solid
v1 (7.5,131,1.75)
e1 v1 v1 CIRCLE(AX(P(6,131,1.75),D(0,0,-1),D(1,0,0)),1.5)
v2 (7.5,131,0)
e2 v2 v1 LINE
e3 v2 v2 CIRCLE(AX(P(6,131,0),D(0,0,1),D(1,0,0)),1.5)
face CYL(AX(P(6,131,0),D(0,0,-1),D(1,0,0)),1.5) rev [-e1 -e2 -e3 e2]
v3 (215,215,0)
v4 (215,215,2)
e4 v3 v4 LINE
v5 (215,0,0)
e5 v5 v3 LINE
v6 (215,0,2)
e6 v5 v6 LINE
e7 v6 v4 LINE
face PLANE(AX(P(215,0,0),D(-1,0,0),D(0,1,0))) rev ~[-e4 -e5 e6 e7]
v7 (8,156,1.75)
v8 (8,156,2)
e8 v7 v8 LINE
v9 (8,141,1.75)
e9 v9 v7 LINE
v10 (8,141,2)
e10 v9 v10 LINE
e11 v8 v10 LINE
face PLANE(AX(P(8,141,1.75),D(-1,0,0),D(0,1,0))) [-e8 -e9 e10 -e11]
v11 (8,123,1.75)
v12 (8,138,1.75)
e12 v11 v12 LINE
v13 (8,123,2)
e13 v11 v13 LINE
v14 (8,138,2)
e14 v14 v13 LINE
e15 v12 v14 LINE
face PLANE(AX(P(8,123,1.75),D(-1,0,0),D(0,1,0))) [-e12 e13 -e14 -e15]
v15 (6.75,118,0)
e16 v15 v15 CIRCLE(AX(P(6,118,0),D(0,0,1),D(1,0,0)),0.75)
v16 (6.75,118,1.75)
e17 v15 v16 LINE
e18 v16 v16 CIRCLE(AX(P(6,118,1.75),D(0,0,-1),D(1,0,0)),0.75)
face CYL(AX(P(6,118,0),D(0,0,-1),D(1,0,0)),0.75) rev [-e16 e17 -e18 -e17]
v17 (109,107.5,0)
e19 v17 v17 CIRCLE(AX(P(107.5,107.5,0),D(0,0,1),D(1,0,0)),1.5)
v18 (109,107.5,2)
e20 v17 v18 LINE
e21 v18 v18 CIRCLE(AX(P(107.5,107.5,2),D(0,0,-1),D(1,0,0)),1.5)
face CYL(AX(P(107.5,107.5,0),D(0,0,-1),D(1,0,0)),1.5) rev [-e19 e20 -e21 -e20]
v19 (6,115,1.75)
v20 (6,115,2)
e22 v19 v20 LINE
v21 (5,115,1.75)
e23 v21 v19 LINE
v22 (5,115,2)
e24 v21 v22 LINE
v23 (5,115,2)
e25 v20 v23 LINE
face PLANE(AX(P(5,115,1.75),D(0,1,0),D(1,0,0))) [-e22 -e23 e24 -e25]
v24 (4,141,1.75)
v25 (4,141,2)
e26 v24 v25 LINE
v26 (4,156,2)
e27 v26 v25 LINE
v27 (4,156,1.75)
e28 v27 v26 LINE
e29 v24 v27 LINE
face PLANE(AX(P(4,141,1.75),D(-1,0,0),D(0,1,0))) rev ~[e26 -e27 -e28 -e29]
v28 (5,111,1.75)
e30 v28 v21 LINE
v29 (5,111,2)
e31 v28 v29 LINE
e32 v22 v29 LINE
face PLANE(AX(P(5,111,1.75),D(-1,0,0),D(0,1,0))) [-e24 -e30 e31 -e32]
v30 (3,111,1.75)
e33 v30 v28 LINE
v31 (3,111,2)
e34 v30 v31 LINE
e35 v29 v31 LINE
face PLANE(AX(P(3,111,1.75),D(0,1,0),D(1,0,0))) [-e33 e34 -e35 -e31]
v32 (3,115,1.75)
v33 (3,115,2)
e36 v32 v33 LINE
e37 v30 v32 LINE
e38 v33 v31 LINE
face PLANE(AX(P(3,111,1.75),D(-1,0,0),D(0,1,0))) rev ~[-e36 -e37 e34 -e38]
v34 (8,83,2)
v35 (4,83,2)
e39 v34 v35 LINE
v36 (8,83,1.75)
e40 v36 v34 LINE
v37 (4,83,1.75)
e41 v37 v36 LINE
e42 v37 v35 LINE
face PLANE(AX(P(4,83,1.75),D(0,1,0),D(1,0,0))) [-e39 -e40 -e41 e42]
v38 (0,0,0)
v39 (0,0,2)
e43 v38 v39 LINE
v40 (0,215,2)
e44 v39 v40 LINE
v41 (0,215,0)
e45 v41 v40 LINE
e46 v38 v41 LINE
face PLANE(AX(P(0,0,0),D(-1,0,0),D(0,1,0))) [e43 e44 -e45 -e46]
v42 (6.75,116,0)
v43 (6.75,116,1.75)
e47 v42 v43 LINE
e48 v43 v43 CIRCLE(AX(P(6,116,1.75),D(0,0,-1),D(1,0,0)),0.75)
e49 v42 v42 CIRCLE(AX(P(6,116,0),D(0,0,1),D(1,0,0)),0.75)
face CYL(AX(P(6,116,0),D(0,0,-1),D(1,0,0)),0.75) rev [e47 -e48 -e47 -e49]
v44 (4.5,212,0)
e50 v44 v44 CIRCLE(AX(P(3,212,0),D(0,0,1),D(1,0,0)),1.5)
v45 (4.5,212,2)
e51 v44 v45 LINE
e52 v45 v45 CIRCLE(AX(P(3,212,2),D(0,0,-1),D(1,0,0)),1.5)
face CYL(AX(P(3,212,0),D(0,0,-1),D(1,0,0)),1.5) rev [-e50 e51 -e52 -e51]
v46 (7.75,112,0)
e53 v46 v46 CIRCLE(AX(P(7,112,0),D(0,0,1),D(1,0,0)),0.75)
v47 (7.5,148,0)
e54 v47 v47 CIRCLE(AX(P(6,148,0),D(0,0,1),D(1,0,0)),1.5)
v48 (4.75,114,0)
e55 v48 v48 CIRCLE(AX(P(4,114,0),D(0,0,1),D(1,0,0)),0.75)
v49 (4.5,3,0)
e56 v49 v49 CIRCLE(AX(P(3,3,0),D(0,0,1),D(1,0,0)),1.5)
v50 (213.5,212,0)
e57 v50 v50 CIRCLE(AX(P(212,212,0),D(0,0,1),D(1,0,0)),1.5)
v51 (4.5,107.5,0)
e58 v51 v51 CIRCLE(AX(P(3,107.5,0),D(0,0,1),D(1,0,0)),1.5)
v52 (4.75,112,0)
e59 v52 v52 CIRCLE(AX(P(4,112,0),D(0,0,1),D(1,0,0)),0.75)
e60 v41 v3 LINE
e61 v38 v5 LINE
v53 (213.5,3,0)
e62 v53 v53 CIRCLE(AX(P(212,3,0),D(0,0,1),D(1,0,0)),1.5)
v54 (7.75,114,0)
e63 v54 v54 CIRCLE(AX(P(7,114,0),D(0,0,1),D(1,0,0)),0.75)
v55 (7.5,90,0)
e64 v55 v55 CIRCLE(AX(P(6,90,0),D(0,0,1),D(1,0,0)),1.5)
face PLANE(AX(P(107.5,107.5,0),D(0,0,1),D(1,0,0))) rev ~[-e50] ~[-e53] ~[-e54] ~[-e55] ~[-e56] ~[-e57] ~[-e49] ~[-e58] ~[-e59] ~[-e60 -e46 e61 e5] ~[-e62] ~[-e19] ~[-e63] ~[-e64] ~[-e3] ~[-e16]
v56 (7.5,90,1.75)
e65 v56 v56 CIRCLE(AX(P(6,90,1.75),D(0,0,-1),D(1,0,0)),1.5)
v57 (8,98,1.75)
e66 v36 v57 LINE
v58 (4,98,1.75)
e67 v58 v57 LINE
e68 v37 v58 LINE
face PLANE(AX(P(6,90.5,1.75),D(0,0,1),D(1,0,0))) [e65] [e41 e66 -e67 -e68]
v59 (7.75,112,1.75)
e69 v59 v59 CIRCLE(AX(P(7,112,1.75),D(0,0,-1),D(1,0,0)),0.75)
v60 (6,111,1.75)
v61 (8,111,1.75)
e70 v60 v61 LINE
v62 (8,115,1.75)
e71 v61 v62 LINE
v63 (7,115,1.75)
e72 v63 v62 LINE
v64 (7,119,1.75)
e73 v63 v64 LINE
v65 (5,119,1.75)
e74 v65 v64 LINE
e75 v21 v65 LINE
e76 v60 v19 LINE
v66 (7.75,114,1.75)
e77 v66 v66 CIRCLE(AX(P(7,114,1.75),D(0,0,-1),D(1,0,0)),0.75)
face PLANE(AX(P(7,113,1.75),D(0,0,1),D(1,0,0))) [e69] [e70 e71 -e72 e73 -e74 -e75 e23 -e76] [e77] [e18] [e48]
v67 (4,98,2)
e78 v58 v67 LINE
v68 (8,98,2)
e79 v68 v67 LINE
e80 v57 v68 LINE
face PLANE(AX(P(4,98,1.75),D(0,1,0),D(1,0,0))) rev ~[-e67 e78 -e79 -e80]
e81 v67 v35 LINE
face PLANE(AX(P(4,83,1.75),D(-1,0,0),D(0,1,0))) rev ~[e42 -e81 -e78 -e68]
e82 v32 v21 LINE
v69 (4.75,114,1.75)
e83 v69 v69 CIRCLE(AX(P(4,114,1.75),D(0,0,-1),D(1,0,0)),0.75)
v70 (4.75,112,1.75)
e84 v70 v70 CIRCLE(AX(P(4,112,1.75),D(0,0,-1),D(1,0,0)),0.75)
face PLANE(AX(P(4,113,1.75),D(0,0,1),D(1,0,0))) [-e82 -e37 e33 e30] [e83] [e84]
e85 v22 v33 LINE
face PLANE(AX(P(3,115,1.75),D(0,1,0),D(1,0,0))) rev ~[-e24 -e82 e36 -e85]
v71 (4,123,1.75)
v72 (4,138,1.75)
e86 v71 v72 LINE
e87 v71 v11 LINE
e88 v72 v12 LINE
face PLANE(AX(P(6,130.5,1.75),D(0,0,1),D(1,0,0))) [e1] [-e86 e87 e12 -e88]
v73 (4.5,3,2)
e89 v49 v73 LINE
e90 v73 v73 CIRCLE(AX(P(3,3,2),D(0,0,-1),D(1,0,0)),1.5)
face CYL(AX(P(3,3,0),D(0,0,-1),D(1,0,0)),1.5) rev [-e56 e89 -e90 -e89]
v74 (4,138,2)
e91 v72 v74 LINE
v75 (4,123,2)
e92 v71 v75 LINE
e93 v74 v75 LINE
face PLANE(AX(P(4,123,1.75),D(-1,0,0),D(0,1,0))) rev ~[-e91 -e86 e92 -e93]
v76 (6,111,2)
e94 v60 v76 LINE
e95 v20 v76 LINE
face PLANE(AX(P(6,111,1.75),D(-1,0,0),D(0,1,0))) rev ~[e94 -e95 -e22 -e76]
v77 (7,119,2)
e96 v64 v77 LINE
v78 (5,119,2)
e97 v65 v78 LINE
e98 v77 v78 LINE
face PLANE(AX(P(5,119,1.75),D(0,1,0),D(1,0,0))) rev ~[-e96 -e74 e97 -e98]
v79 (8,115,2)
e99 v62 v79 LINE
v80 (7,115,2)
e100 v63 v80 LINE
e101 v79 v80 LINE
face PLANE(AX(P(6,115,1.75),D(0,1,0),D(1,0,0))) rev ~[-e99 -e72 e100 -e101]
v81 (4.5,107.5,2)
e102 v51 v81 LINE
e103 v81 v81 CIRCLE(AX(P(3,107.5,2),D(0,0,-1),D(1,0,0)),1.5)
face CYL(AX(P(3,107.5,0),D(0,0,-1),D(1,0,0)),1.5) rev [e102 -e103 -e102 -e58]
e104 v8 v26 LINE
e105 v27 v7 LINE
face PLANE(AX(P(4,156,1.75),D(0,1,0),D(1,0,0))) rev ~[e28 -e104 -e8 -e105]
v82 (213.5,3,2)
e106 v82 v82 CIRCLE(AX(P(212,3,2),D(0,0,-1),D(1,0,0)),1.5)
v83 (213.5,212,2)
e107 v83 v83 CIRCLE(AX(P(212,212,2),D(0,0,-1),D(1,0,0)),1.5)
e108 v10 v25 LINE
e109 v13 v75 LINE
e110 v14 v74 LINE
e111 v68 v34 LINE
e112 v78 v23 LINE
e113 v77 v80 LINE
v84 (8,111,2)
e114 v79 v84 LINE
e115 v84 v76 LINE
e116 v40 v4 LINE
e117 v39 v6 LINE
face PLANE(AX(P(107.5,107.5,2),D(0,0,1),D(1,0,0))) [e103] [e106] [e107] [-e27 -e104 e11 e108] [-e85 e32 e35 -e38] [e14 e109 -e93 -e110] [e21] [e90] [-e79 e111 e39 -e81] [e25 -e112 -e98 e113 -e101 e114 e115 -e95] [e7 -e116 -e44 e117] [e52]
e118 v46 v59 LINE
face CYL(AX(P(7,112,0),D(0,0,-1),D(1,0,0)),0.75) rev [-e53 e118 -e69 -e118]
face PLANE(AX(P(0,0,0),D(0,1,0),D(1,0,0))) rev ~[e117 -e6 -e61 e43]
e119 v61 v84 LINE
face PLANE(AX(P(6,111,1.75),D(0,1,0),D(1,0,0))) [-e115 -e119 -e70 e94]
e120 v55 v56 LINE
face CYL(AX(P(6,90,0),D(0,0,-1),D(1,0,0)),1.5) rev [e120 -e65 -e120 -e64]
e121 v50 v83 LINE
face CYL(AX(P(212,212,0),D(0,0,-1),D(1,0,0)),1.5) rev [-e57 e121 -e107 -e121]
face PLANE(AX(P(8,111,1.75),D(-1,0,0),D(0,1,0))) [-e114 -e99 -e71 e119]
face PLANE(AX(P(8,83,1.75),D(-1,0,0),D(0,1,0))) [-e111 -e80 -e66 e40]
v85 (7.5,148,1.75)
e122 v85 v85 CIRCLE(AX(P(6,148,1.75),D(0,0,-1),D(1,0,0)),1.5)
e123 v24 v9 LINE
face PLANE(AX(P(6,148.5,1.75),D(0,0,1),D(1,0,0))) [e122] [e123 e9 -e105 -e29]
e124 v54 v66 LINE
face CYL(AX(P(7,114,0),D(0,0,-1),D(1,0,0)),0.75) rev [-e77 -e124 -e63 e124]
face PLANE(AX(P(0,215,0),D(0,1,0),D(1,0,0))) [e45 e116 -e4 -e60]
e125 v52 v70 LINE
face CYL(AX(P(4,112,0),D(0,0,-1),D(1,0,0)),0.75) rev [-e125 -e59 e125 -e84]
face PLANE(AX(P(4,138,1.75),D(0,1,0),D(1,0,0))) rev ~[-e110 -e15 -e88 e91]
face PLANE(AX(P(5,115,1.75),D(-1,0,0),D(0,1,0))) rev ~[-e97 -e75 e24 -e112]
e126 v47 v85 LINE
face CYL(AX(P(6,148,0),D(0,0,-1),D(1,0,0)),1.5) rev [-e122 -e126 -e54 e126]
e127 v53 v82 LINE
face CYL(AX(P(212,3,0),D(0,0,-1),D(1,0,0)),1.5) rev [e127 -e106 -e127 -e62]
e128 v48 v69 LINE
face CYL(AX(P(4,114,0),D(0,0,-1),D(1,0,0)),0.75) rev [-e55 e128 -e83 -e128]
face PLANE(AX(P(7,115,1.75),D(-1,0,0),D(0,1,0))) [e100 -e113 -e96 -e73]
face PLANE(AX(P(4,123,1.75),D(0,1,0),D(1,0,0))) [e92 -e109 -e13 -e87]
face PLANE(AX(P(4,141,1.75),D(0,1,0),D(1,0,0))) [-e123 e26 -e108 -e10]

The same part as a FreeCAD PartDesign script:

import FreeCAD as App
import Part
import Sketcher

doc = App.newDocument("Part")
body = doc.addObject("PartDesign::Body", "Body")

# Sketch on XY plane
sketch1 = doc.addObject("Sketcher::SketchObject", "Sketch")
body.addObject(sketch1)
sketch1.AttachmentSupport = (doc.XY_Plane, [""])
sketch1.MapMode = "FlatFace"
sketch1.AttachmentOffset = App.Placement(App.Vector(0, 0, 1.75), App.Rotation())
sketch1.addGeometry([
    Part.LineSegment(App.Vector(6, 115, 0), App.Vector(6, 111, 0)),
    Part.LineSegment(App.Vector(6, 111, 0), App.Vector(8, 111, 0)),
    Part.LineSegment(App.Vector(8, 111, 0), App.Vector(8, 115, 0)),
    Part.LineSegment(App.Vector(8, 115, 0), App.Vector(6, 115, 0)),
], False)
sketch1.addConstraint([
    Sketcher.Constraint("Coincident", 0, 2, 1, 1),
    Sketcher.Constraint("Coincident", 1, 2, 2, 1),
    Sketcher.Constraint("Coincident", 2, 2, 3, 1),
    Sketcher.Constraint("Coincident", 3, 2, 0, 1),
    Sketcher.Constraint("Vertical", 0),
    Sketcher.Constraint("Horizontal", 1),
    Sketcher.Constraint("Vertical", 2),
    Sketcher.Constraint("Horizontal", 3),
    Sketcher.Constraint("DistanceX", 1, 1, 1, 2, 2.0),
    Sketcher.Constraint("DistanceY", 0, 2, 0, 1, 4.0),
    Sketcher.Constraint("DistanceX", -1, 1, 0, 2, 6.0),
    Sketcher.Constraint("DistanceY", -1, 1, 0, 2, 111.0),
])
pad1 = doc.addObject("PartDesign::Pad", "Pad")
body.addObject(pad1)
pad1.Profile = sketch1
pad1.Length = 0.5
body2 = doc.addObject("PartDesign::Body", "Body001")

# Sketch on XY plane
sketch2 = doc.addObject("Sketcher::SketchObject", "Sketch001")
body2.addObject(sketch2)
sketch2.AttachmentSupport = (doc.getObject("XY_Plane001"), [""])
sketch2.MapMode = "FlatFace"
sketch2.AttachmentOffset = App.Placement(App.Vector(0, 0, 1.75), App.Rotation())
sketch2.addGeometry([
    Part.LineSegment(App.Vector(5, 119, 0), App.Vector(5, 115, 0)),
    Part.LineSegment(App.Vector(5, 115, 0), App.Vector(7, 115, 0)),
    Part.LineSegment(App.Vector(7, 115, 0), App.Vector(7, 119, 0)),
    Part.LineSegment(App.Vector(7, 119, 0), App.Vector(5, 119, 0)),
], False)
sketch2.addConstraint([
    Sketcher.Constraint("Coincident", 0, 2, 1, 1),
    Sketcher.Constraint("Coincident", 1, 2, 2, 1),
    Sketcher.Constraint("Coincident", 2, 2, 3, 1),
    Sketcher.Constraint("Coincident", 3, 2, 0, 1),
    Sketcher.Constraint("Vertical", 0),
    Sketcher.Constraint("Horizontal", 1),
    Sketcher.Constraint("Vertical", 2),
    Sketcher.Constraint("Horizontal", 3),
    Sketcher.Constraint("DistanceX", 1, 1, 1, 2, 2.0),
    Sketcher.Constraint("DistanceY", 0, 2, 0, 1, 4.0),
    Sketcher.Constraint("DistanceX", -1, 1, 0, 2, 5.0),
    Sketcher.Constraint("DistanceY", -1, 1, 0, 2, 115.0),
])
pad2 = doc.addObject("PartDesign::Pad", "Pad001")
body2.addObject(pad2)
pad2.Profile = sketch2
pad2.Length = 0.5
body3 = doc.addObject("PartDesign::Body", "Body002")

# Sketch on XY plane
sketch3 = doc.addObject("Sketcher::SketchObject", "Sketch002")
body3.addObject(sketch3)
sketch3.AttachmentSupport = (doc.getObject("XY_Plane002"), [""])
sketch3.MapMode = "FlatFace"
sketch3.AttachmentOffset = App.Placement(App.Vector(0, 0, 1.75), App.Rotation())
sketch3.addGeometry([
    Part.LineSegment(App.Vector(3, 115, 0), App.Vector(3, 111, 0)),
    Part.LineSegment(App.Vector(3, 111, 0), App.Vector(5, 111, 0)),
    Part.LineSegment(App.Vector(5, 111, 0), App.Vector(5, 115, 0)),
    Part.LineSegment(App.Vector(5, 115, 0), App.Vector(3, 115, 0)),
], False)
sketch3.addConstraint([
    Sketcher.Constraint("Coincident", 0, 2, 1, 1),
    Sketcher.Constraint("Coincident", 1, 2, 2, 1),
    Sketcher.Constraint("Coincident", 2, 2, 3, 1),
    Sketcher.Constraint("Coincident", 3, 2, 0, 1),
    Sketcher.Constraint("Vertical", 0),
    Sketcher.Constraint("Horizontal", 1),
    Sketcher.Constraint("Vertical", 2),
    Sketcher.Constraint("Horizontal", 3),
    Sketcher.Constraint("DistanceX", 1, 1, 1, 2, 2.0),
    Sketcher.Constraint("DistanceY", 0, 2, 0, 1, 4.0),
    Sketcher.Constraint("DistanceX", -1, 1, 0, 2, 3.0),
    Sketcher.Constraint("DistanceY", -1, 1, 0, 2, 111.0),
])
pad3 = doc.addObject("PartDesign::Pad", "Pad002")
body3.addObject(pad3)
pad3.Profile = sketch3
pad3.Length = 0.5
body4 = doc.addObject("PartDesign::Body", "Body003")

# Sketch on XY plane
sketch4 = doc.addObject("Sketcher::SketchObject", "Sketch003")
body4.addObject(sketch4)
sketch4.AttachmentSupport = (doc.getObject("XY_Plane003"), [""])
sketch4.MapMode = "FlatFace"
sketch4.AttachmentOffset = App.Placement(App.Vector(0, 0, 1.75), App.Rotation())
sketch4.addGeometry([
    Part.LineSegment(App.Vector(4, 156, 0), App.Vector(4, 141, 0)),
    Part.LineSegment(App.Vector(4, 141, 0), App.Vector(8, 141, 0)),
    Part.LineSegment(App.Vector(8, 141, 0), App.Vector(8, 156, 0)),
    Part.LineSegment(App.Vector(8, 156, 0), App.Vector(4, 156, 0)),
], False)
sketch4.addConstraint([
    Sketcher.Constraint("Coincident", 0, 2, 1, 1),
    Sketcher.Constraint("Coincident", 1, 2, 2, 1),
    Sketcher.Constraint("Coincident", 2, 2, 3, 1),
    Sketcher.Constraint("Coincident", 3, 2, 0, 1),
    Sketcher.Constraint("Vertical", 0),
    Sketcher.Constraint("Horizontal", 1),
    Sketcher.Constraint("Vertical", 2),
    Sketcher.Constraint("Horizontal", 3),
    Sketcher.Constraint("DistanceX", 1, 1, 1, 2, 4.0),
    Sketcher.Constraint("DistanceY", 0, 2, 0, 1, 15.0),
    Sketcher.Constraint("DistanceX", -1, 1, 0, 2, 4.0),
    Sketcher.Constraint("DistanceY", -1, 1, 0, 2, 141.0),
])
pad4 = doc.addObject("PartDesign::Pad", "Pad003")
body4.addObject(pad4)
pad4.Profile = sketch4
pad4.Length = 0.5
body5 = doc.addObject("PartDesign::Body", "Body004")

# Sketch on XY plane
sketch5 = doc.addObject("Sketcher::SketchObject", "Sketch004")
body5.addObject(sketch5)
sketch5.AttachmentSupport = (doc.getObject("XY_Plane004"), [""])
sketch5.MapMode = "FlatFace"
sketch5.AttachmentOffset = App.Placement(App.Vector(0, 0, 1.75), App.Rotation())
sketch5.addGeometry([
    Part.LineSegment(App.Vector(4, 138, 0), App.Vector(4, 123, 0)),
    Part.LineSegment(App.Vector(4, 123, 0), App.Vector(8, 123, 0)),
    Part.LineSegment(App.Vector(8, 123, 0), App.Vector(8, 138, 0)),
    Part.LineSegment(App.Vector(8, 138, 0), App.Vector(4, 138, 0)),
], False)
sketch5.addConstraint([
    Sketcher.Constraint("Coincident", 0, 2, 1, 1),
    Sketcher.Constraint("Coincident", 1, 2, 2, 1),
    Sketcher.Constraint("Coincident", 2, 2, 3, 1),
    Sketcher.Constraint("Coincident", 3, 2, 0, 1),
    Sketcher.Constraint("Vertical", 0),
    Sketcher.Constraint("Horizontal", 1),
    Sketcher.Constraint("Vertical", 2),
    Sketcher.Constraint("Horizontal", 3),
    Sketcher.Constraint("DistanceX", 1, 1, 1, 2, 4.0),
    Sketcher.Constraint("DistanceY", 0, 2, 0, 1, 15.0),
    Sketcher.Constraint("DistanceX", -1, 1, 0, 2, 4.0),
    Sketcher.Constraint("DistanceY", -1, 1, 0, 2, 123.0),
])
pad5 = doc.addObject("PartDesign::Pad", "Pad004")
body5.addObject(pad5)
pad5.Profile = sketch5
pad5.Length = 0.5
body6 = doc.addObject("PartDesign::Body", "Body005")

# Sketch on XY plane
sketch6 = doc.addObject("Sketcher::SketchObject", "Sketch005")
body6.addObject(sketch6)
sketch6.AttachmentSupport = (doc.getObject("XY_Plane005"), [""])
sketch6.MapMode = "FlatFace"
sketch6.AttachmentOffset = App.Placement(App.Vector(0, 0, 1.75), App.Rotation())
sketch6.addGeometry([
    Part.LineSegment(App.Vector(4, 98, 0), App.Vector(4, 83, 0)),
    Part.LineSegment(App.Vector(4, 83, 0), App.Vector(8, 83, 0)),
    Part.LineSegment(App.Vector(8, 83, 0), App.Vector(8, 98, 0)),
    Part.LineSegment(App.Vector(8, 98, 0), App.Vector(4, 98, 0)),
], False)
sketch6.addConstraint([
    Sketcher.Constraint("Coincident", 0, 2, 1, 1),
    Sketcher.Constraint("Coincident", 1, 2, 2, 1),
    Sketcher.Constraint("Coincident", 2, 2, 3, 1),
    Sketcher.Constraint("Coincident", 3, 2, 0, 1),
    Sketcher.Constraint("Vertical", 0),
    Sketcher.Constraint("Horizontal", 1),
    Sketcher.Constraint("Vertical", 2),
    Sketcher.Constraint("Horizontal", 3),
    Sketcher.Constraint("DistanceX", 1, 1, 1, 2, 4.0),
    Sketcher.Constraint("DistanceY", 0, 2, 0, 1, 15.0),
    Sketcher.Constraint("DistanceX", -1, 1, 0, 2, 4.0),
    Sketcher.Constraint("DistanceY", -1, 1, 0, 2, 83.0),
])
pad6 = doc.addObject("PartDesign::Pad", "Pad005")
body6.addObject(pad6)
pad6.Profile = sketch6
pad6.Length = 0.5
body7 = doc.addObject("PartDesign::Body", "Body006")

# Sketch on XY plane
sketch7 = doc.addObject("Sketcher::SketchObject", "Sketch006")
body7.addObject(sketch7)
sketch7.AttachmentSupport = (doc.getObject("XY_Plane006"), [""])
sketch7.MapMode = "FlatFace"
sketch7.addGeometry(Part.Circle(App.Vector(6, 118, 0), App.Vector(0, 0, 1), 0.8), False)
sketch7.addConstraint([
    Sketcher.Constraint("Diameter", 0, 1.5),
    Sketcher.Constraint("DistanceX", -1, 1, 0, 3, 6.0),
    Sketcher.Constraint("DistanceY", -1, 1, 0, 3, 118.0),
])
pad7 = doc.addObject("PartDesign::Pad", "Pad006")
body7.addObject(pad7)
pad7.Profile = sketch7
pad7.Length = 10
body8 = doc.addObject("PartDesign::Body", "Body007")

# Sketch on XY plane
sketch8 = doc.addObject("Sketcher::SketchObject", "Sketch007")
body8.addObject(sketch8)
sketch8.AttachmentSupport = (doc.getObject("XY_Plane007"), [""])
sketch8.MapMode = "FlatFace"
sketch8.addGeometry(Part.Circle(App.Vector(6, 116, 0), App.Vector(0, 0, 1), 0.8), False)
sketch8.addConstraint([
    Sketcher.Constraint("Diameter", 0, 1.5),
    Sketcher.Constraint("DistanceX", -1, 1, 0, 3, 6.0),
    Sketcher.Constraint("DistanceY", -1, 1, 0, 3, 116.0),
])
pad8 = doc.addObject("PartDesign::Pad", "Pad007")
body8.addObject(pad8)
pad8.Profile = sketch8
pad8.Length = 10
body9 = doc.addObject("PartDesign::Body", "Body008")

# Sketch on XY plane
sketch9 = doc.addObject("Sketcher::SketchObject", "Sketch008")
body9.addObject(sketch9)
sketch9.AttachmentSupport = (doc.getObject("XY_Plane008"), [""])
sketch9.MapMode = "FlatFace"
sketch9.addGeometry(Part.Circle(App.Vector(4, 114, 0), App.Vector(0, 0, 1), 0.8), False)
sketch9.addConstraint([
    Sketcher.Constraint("Diameter", 0, 1.5),
    Sketcher.Constraint("DistanceX", -1, 1, 0, 3, 4.0),
    Sketcher.Constraint("DistanceY", -1, 1, 0, 3, 114.0),
])
pad9 = doc.addObject("PartDesign::Pad", "Pad008")
body9.addObject(pad9)
pad9.Profile = sketch9
pad9.Length = 10
body10 = doc.addObject("PartDesign::Body", "Body009")

# Sketch on XY plane
sketch10 = doc.addObject("Sketcher::SketchObject", "Sketch009")
body10.addObject(sketch10)
sketch10.AttachmentSupport = (doc.getObject("XY_Plane009"), [""])
sketch10.MapMode = "FlatFace"
sketch10.addGeometry(Part.Circle(App.Vector(7, 114, 0), App.Vector(0, 0, 1), 0.8), False)
sketch10.addConstraint([
    Sketcher.Constraint("Diameter", 0, 1.5),
    Sketcher.Constraint("DistanceX", -1, 1, 0, 3, 7.0),
    Sketcher.Constraint("DistanceY", -1, 1, 0, 3, 114.0),
])
pad10 = doc.addObject("PartDesign::Pad", "Pad009")
body10.addObject(pad10)
pad10.Profile = sketch10
pad10.Length = 10
body11 = doc.addObject("PartDesign::Body", "Body010")

# Sketch on XY plane
sketch11 = doc.addObject("Sketcher::SketchObject", "Sketch010")
body11.addObject(sketch11)
sketch11.AttachmentSupport = (doc.getObject("XY_Plane010"), [""])
sketch11.MapMode = "FlatFace"
sketch11.addGeometry(Part.Circle(App.Vector(7, 112, 0), App.Vector(0, 0, 1), 0.8), False)
sketch11.addConstraint([
    Sketcher.Constraint("Diameter", 0, 1.5),
    Sketcher.Constraint("DistanceX", -1, 1, 0, 3, 7.0),
    Sketcher.Constraint("DistanceY", -1, 1, 0, 3, 112.0),
])
pad11 = doc.addObject("PartDesign::Pad", "Pad010")
body11.addObject(pad11)
pad11.Profile = sketch11
pad11.Length = 10
body12 = doc.addObject("PartDesign::Body", "Body011")

# Sketch on XY plane
sketch12 = doc.addObject("Sketcher::SketchObject", "Sketch011")
body12.addObject(sketch12)
sketch12.AttachmentSupport = (doc.getObject("XY_Plane011"), [""])
sketch12.MapMode = "FlatFace"
sketch12.addGeometry(Part.Circle(App.Vector(4, 112, 0), App.Vector(0, 0, 1), 0.8), False)
sketch12.addConstraint([
    Sketcher.Constraint("Diameter", 0, 1.5),
    Sketcher.Constraint("DistanceX", -1, 1, 0, 3, 4.0),
    Sketcher.Constraint("DistanceY", -1, 1, 0, 3, 112.0),
])
pad12 = doc.addObject("PartDesign::Pad", "Pad011")
body12.addObject(pad12)
pad12.Profile = sketch12
pad12.Length = 10
body13 = doc.addObject("PartDesign::Body", "Body012")

# Sketch on XY plane
sketch13 = doc.addObject("Sketcher::SketchObject", "Sketch012")
body13.addObject(sketch13)
sketch13.AttachmentSupport = (doc.getObject("XY_Plane012"), [""])
sketch13.MapMode = "FlatFace"
sketch13.addGeometry(Part.Circle(App.Vector(3, 107.5, 0), App.Vector(0, 0, 1), 1.5), False)
sketch13.addConstraint([
    Sketcher.Constraint("Diameter", 0, 3.0),
    Sketcher.Constraint("DistanceX", -1, 1, 0, 3, 3.0),
    Sketcher.Constraint("DistanceY", -1, 1, 0, 3, 107.5),
])
pad13 = doc.addObject("PartDesign::Pad", "Pad012")
body13.addObject(pad13)
pad13.Profile = sketch13
pad13.Length = 10
body14 = doc.addObject("PartDesign::Body", "Body013")

# Sketch on XY plane
sketch14 = doc.addObject("Sketcher::SketchObject", "Sketch013")
body14.addObject(sketch14)
sketch14.AttachmentSupport = (doc.getObject("XY_Plane013"), [""])
sketch14.MapMode = "FlatFace"
sketch14.addGeometry(Part.Circle(App.Vector(6, 131, 0), App.Vector(0, 0, 1), 1.5), False)
sketch14.addConstraint([
    Sketcher.Constraint("Diameter", 0, 3.0),
    Sketcher.Constraint("DistanceX", -1, 1, 0, 3, 6.0),
    Sketcher.Constraint("DistanceY", -1, 1, 0, 3, 131.0),
])
pad14 = doc.addObject("PartDesign::Pad", "Pad013")
body14.addObject(pad14)
pad14.Profile = sketch14
pad14.Length = 10
body15 = doc.addObject("PartDesign::Body", "Body014")

# Sketch on XY plane
sketch15 = doc.addObject("Sketcher::SketchObject", "Sketch014")
body15.addObject(sketch15)
sketch15.AttachmentSupport = (doc.getObject("XY_Plane014"), [""])
sketch15.MapMode = "FlatFace"
sketch15.addGeometry(Part.Circle(App.Vector(6, 148, 0), App.Vector(0, 0, 1), 1.5), False)
sketch15.addConstraint([
    Sketcher.Constraint("Diameter", 0, 3.0),
    Sketcher.Constraint("DistanceX", -1, 1, 0, 3, 6.0),
    Sketcher.Constraint("DistanceY", -1, 1, 0, 3, 148.0),
])
pad15 = doc.addObject("PartDesign::Pad", "Pad014")
body15.addObject(pad15)
pad15.Profile = sketch15
pad15.Length = 10
body16 = doc.addObject("PartDesign::Body", "Body015")

# Sketch on XY plane
sketch16 = doc.addObject("Sketcher::SketchObject", "Sketch015")
body16.addObject(sketch16)
sketch16.AttachmentSupport = (doc.getObject("XY_Plane015"), [""])
sketch16.MapMode = "FlatFace"
sketch16.addGeometry(Part.Circle(App.Vector(6, 90, 0), App.Vector(0, 0, 1), 1.5), False)
sketch16.addConstraint([
    Sketcher.Constraint("Diameter", 0, 3.0),
    Sketcher.Constraint("DistanceX", -1, 1, 0, 3, 6.0),
    Sketcher.Constraint("DistanceY", -1, 1, 0, 3, 90.0),
])
pad16 = doc.addObject("PartDesign::Pad", "Pad015")
body16.addObject(pad16)
pad16.Profile = sketch16
pad16.Length = 10
body17 = doc.addObject("PartDesign::Body", "Body016")

# Sketch on XY plane
sketch17 = doc.addObject("Sketcher::SketchObject", "Sketch016")
body17.addObject(sketch17)
sketch17.AttachmentSupport = (doc.getObject("XY_Plane016"), [""])
sketch17.MapMode = "FlatFace"
sketch17.addGeometry(Part.Circle(App.Vector(3, 212, 0), App.Vector(0, 0, 1), 1.5), False)
sketch17.addConstraint([
    Sketcher.Constraint("Diameter", 0, 3.0),
    Sketcher.Constraint("DistanceX", -1, 1, 0, 3, 3.0),
    Sketcher.Constraint("DistanceY", -1, 1, 0, 3, 212.0),
])
pad17 = doc.addObject("PartDesign::Pad", "Pad016")
body17.addObject(pad17)
pad17.Profile = sketch17
pad17.Length = 10
body18 = doc.addObject("PartDesign::Body", "Body017")

# Sketch on XY plane
sketch18 = doc.addObject("Sketcher::SketchObject", "Sketch017")
body18.addObject(sketch18)
sketch18.AttachmentSupport = (doc.getObject("XY_Plane017"), [""])
sketch18.MapMode = "FlatFace"
sketch18.addGeometry(Part.Circle(App.Vector(107.5, 107.5, 0), App.Vector(0, 0, 1), 1.5), False)
sketch18.addConstraint([
    Sketcher.Constraint("Diameter", 0, 3.0),
    Sketcher.Constraint("DistanceX", -1, 1, 0, 3, 107.5),
    Sketcher.Constraint("DistanceY", -1, 1, 0, 3, 107.5),
])
pad18 = doc.addObject("PartDesign::Pad", "Pad017")
body18.addObject(pad18)
pad18.Profile = sketch18
pad18.Length = 10
body19 = doc.addObject("PartDesign::Body", "Body018")

# Sketch on XY plane
sketch19 = doc.addObject("Sketcher::SketchObject", "Sketch018")
body19.addObject(sketch19)
sketch19.AttachmentSupport = (doc.getObject("XY_Plane018"), [""])
sketch19.MapMode = "FlatFace"
sketch19.addGeometry(Part.Circle(App.Vector(212, 212, 0), App.Vector(0, 0, 1), 1.5), False)
sketch19.addConstraint([
    Sketcher.Constraint("Diameter", 0, 3.0),
    Sketcher.Constraint("DistanceX", -1, 1, 0, 3, 212.0),
    Sketcher.Constraint("DistanceY", -1, 1, 0, 3, 212.0),
])
pad19 = doc.addObject("PartDesign::Pad", "Pad018")
body19.addObject(pad19)
pad19.Profile = sketch19
pad19.Length = 10
body20 = doc.addObject("PartDesign::Body", "Body019")

# Sketch on XY plane
sketch20 = doc.addObject("Sketcher::SketchObject", "Sketch019")
body20.addObject(sketch20)
sketch20.AttachmentSupport = (doc.getObject("XY_Plane019"), [""])
sketch20.MapMode = "FlatFace"
sketch20.addGeometry(Part.Circle(App.Vector(212, 3, 0), App.Vector(0, 0, 1), 1.5), False)
sketch20.addConstraint([
    Sketcher.Constraint("Diameter", 0, 3.0),
    Sketcher.Constraint("DistanceX", -1, 1, 0, 3, 212.0),
    Sketcher.Constraint("DistanceY", -1, 1, 0, 3, 3.0),
])
pad20 = doc.addObject("PartDesign::Pad", "Pad019")
body20.addObject(pad20)
pad20.Profile = sketch20
pad20.Length = 10
body21 = doc.addObject("PartDesign::Body", "Body020")

# Sketch on XY plane
sketch21 = doc.addObject("Sketcher::SketchObject", "Sketch020")
body21.addObject(sketch21)
sketch21.AttachmentSupport = (doc.getObject("XY_Plane020"), [""])
sketch21.MapMode = "FlatFace"
sketch21.addGeometry(Part.Circle(App.Vector(3, 3, 0), App.Vector(0, 0, 1), 1.5), False)
sketch21.addConstraint([
    Sketcher.Constraint("Diameter", 0, 3.0),
    Sketcher.Constraint("DistanceX", -1, 1, 0, 3, 3.0),
    Sketcher.Constraint("DistanceY", -1, 1, 0, 3, 3.0),
])
pad21 = doc.addObject("PartDesign::Pad", "Pad020")
body21.addObject(pad21)
pad21.Profile = sketch21
pad21.Length = 10
body22 = doc.addObject("PartDesign::Body", "Body021")

# Sketch on XY plane
sketch22 = doc.addObject("Sketcher::SketchObject", "Sketch021")
body22.addObject(sketch22)
sketch22.AttachmentSupport = (doc.getObject("XY_Plane021"), [""])
sketch22.MapMode = "FlatFace"
sketch22.addGeometry([
    Part.LineSegment(App.Vector(0, 215, 0), App.Vector(0, 0, 0)),
    Part.LineSegment(App.Vector(0, 0, 0), App.Vector(215, 0, 0)),
    Part.LineSegment(App.Vector(215, 0, 0), App.Vector(215, 215, 0)),
    Part.LineSegment(App.Vector(215, 215, 0), App.Vector(0, 215, 0)),
], False)
sketch22.addConstraint([
    Sketcher.Constraint("Coincident", 0, 2, 1, 1),
    Sketcher.Constraint("Coincident", 1, 2, 2, 1),
    Sketcher.Constraint("Coincident", 2, 2, 3, 1),
    Sketcher.Constraint("Coincident", 3, 2, 0, 1),
    Sketcher.Constraint("Vertical", 0),
    Sketcher.Constraint("Horizontal", 1),
    Sketcher.Constraint("Vertical", 2),
    Sketcher.Constraint("Horizontal", 3),
    Sketcher.Constraint("Coincident", 0, 2, -1, 1),
    Sketcher.Constraint("Equal", 3, 0),
    Sketcher.Constraint("DistanceX", 1, 1, 1, 2, 215.0),
])
pad22 = doc.addObject("PartDesign::Pad", "Pad021")
body22.addObject(pad22)
pad22.Profile = sketch22
pad22.Length = 2
doc.recompute()

boolean = doc.addObject("PartDesign::Boolean", "Boolean")
body22.addObject(boolean)
boolean.Type = "Cut"
boolean.addObjects([body21])
doc.recompute()

boolean2 = doc.addObject("PartDesign::Boolean", "Boolean001")
body22.addObject(boolean2)
boolean2.Type = "Cut"
boolean2.addObjects([body20])
doc.recompute()

boolean3 = doc.addObject("PartDesign::Boolean", "Boolean002")
body22.addObject(boolean3)
boolean3.Type = "Cut"
boolean3.addObjects([body19])
doc.recompute()

boolean4 = doc.addObject("PartDesign::Boolean", "Boolean003")
body22.addObject(boolean4)
boolean4.Type = "Cut"
boolean4.addObjects([body18])
doc.recompute()

boolean5 = doc.addObject("PartDesign::Boolean", "Boolean004")
body22.addObject(boolean5)
boolean5.Type = "Cut"
boolean5.addObjects([body17])
doc.recompute()

boolean6 = doc.addObject("PartDesign::Boolean", "Boolean005")
body22.addObject(boolean6)
boolean6.Type = "Cut"
boolean6.addObjects([body16])
doc.recompute()

boolean7 = doc.addObject("PartDesign::Boolean", "Boolean006")
body22.addObject(boolean7)
boolean7.Type = "Cut"
boolean7.addObjects([body15])
doc.recompute()

boolean8 = doc.addObject("PartDesign::Boolean", "Boolean007")
body22.addObject(boolean8)
boolean8.Type = "Cut"
boolean8.addObjects([body14])
doc.recompute()

boolean9 = doc.addObject("PartDesign::Boolean", "Boolean008")
body22.addObject(boolean9)
boolean9.Type = "Cut"
boolean9.addObjects([body13])
doc.recompute()

boolean10 = doc.addObject("PartDesign::Boolean", "Boolean009")
body22.addObject(boolean10)
boolean10.Type = "Cut"
boolean10.addObjects([body12])
doc.recompute()

boolean11 = doc.addObject("PartDesign::Boolean", "Boolean010")
body22.addObject(boolean11)
boolean11.Type = "Cut"
boolean11.addObjects([body11])
doc.recompute()

boolean12 = doc.addObject("PartDesign::Boolean", "Boolean011")
body22.addObject(boolean12)
boolean12.Type = "Cut"
boolean12.addObjects([body10])
doc.recompute()

boolean13 = doc.addObject("PartDesign::Boolean", "Boolean012")
body22.addObject(boolean13)
boolean13.Type = "Cut"
boolean13.addObjects([body9])
doc.recompute()

boolean14 = doc.addObject("PartDesign::Boolean", "Boolean013")
body22.addObject(boolean14)
boolean14.Type = "Cut"
boolean14.addObjects([body8])
doc.recompute()

boolean15 = doc.addObject("PartDesign::Boolean", "Boolean014")
body22.addObject(boolean15)
boolean15.Type = "Cut"
boolean15.addObjects([body7])
doc.recompute()

boolean16 = doc.addObject("PartDesign::Boolean", "Boolean015")
body22.addObject(boolean16)
boolean16.Type = "Cut"
boolean16.addObjects([body6])
doc.recompute()

boolean17 = doc.addObject("PartDesign::Boolean", "Boolean016")
body22.addObject(boolean17)
boolean17.Type = "Cut"
boolean17.addObjects([body5])
doc.recompute()

boolean18 = doc.addObject("PartDesign::Boolean", "Boolean017")
body22.addObject(boolean18)
boolean18.Type = "Cut"
boolean18.addObjects([body4])
doc.recompute()

boolean19 = doc.addObject("PartDesign::Boolean", "Boolean018")
body22.addObject(boolean19)
boolean19.Type = "Cut"
boolean19.addObjects([body3])
doc.recompute()

boolean20 = doc.addObject("PartDesign::Boolean", "Boolean019")
body22.addObject(boolean20)
boolean20.Type = "Cut"
boolean20.addObjects([body2])
doc.recompute()

boolean21 = doc.addObject("PartDesign::Boolean", "Boolean020")
body22.addObject(boolean21)
boolean21.Type = "Cut"
boolean21.addObjects([body])

doc.recompute()
